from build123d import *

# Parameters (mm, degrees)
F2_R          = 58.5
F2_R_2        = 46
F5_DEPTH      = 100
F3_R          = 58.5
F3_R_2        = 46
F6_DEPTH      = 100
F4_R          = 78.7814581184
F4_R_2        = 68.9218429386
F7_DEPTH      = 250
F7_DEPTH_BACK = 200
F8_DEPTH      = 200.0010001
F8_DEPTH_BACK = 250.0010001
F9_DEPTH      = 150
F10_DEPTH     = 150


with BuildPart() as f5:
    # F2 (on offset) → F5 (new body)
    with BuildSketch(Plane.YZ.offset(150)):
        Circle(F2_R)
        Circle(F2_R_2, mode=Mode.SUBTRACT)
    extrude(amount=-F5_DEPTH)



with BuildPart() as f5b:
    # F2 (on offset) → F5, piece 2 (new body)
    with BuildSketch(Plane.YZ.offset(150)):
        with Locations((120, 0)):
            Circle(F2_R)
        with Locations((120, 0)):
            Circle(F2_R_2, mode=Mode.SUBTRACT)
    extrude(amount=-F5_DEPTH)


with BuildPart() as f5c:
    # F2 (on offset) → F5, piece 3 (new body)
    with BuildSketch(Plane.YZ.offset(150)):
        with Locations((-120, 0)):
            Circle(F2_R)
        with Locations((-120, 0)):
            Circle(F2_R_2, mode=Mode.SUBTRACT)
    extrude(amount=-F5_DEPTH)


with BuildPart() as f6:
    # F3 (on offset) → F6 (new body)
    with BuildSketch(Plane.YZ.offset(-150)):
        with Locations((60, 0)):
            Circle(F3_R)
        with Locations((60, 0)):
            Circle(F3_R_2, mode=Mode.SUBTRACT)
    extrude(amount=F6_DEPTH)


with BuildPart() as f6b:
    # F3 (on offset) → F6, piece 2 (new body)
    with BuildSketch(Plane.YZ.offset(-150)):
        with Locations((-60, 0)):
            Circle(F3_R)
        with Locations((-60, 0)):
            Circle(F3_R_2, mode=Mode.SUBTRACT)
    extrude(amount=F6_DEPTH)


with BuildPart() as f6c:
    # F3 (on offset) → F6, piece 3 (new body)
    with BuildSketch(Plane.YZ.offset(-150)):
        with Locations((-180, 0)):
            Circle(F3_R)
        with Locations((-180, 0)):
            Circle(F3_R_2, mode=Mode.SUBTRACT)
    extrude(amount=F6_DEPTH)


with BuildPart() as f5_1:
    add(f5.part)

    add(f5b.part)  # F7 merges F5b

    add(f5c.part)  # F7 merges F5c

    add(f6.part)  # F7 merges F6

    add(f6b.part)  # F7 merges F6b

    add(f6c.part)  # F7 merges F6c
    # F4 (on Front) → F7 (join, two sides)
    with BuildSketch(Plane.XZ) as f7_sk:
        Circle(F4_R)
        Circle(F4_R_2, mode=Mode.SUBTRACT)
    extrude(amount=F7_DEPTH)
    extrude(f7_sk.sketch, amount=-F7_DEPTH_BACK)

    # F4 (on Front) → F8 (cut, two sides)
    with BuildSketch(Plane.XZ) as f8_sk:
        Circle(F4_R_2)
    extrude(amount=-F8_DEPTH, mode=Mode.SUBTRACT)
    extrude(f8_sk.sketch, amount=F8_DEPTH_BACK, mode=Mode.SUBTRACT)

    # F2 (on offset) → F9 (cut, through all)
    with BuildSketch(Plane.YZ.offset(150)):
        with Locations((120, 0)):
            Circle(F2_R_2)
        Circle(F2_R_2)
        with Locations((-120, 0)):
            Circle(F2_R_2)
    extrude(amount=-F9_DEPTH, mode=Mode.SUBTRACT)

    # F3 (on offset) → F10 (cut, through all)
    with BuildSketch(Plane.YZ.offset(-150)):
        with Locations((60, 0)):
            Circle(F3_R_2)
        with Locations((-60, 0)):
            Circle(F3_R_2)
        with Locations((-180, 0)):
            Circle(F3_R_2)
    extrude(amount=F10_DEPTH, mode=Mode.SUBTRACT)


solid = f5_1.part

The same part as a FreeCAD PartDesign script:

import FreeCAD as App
import Part
import Sketcher
Q = App.Units.Quantity

doc = App.newDocument("Part")
body = doc.addObject("PartDesign::Body", "Body")

# Sketch on YZ plane
sketch1 = body.newObject("Sketcher::SketchObject", "Sketch")
sketch1.AttachmentSupport = (doc.getObject("YZ_Plane"), [""])
sketch1.MapMode = "FlatFace"
sketch1.AttachmentOffset = App.Placement(App.Vector(0, 0, 150), App.Rotation())
sketch1.addGeometry(Part.Circle(App.Vector(0, 0, 0), App.Vector(0, 0, 1), 58.5), False)
sketch1.addGeometry(Part.Circle(App.Vector(0, 0, 0), App.Vector(0, 0, 1), 46), False)
sketch1.addConstraint(Sketcher.Constraint("Coincident", 0, 3, -1, 1))
sketch1.addConstraint(Sketcher.Constraint("Coincident", 1, 3, -1, 1))
sketch1.addConstraint(Sketcher.Constraint("Diameter", 0, Q("117 mm")))
sketch1.addConstraint(Sketcher.Constraint("Diameter", 1, Q("92 mm")))
pad1 = body.newObject("PartDesign::Pad", "Pad")
pad1.Profile = sketch1
pad1.Length = 100
pad1.Reversed = True
body2 = doc.addObject("PartDesign::Body", "Body001")

# Sketch on YZ plane
sketch2 = body2.newObject("Sketcher::SketchObject", "Sketch001")
sketch2.AttachmentSupport = (doc.getObject("YZ_Plane001"), [""])
sketch2.MapMode = "FlatFace"
sketch2.AttachmentOffset = App.Placement(App.Vector(0, 0, 150), App.Rotation())
sketch2.addGeometry(Part.Circle(App.Vector(120, 0, 0), App.Vector(0, 0, 1), 58.5), False)
sketch2.addGeometry(Part.Circle(App.Vector(120, 0, 0), App.Vector(0, 0, 1), 46), False)
sketch2.addConstraint(Sketcher.Constraint("Coincident", 1, 3, 0, 3))
sketch2.addConstraint(Sketcher.Constraint("PointOnObject", 0, 3, -1))
sketch2.addConstraint(Sketcher.Constraint("Diameter", 0, Q("117 mm")))
sketch2.addConstraint(Sketcher.Constraint("Diameter", 1, Q("92 mm")))
sketch2.addConstraint(Sketcher.Constraint("DistanceX", -1, 1, 0, 3, Q("120 mm")))
pad2 = body2.newObject("PartDesign::Pad", "Pad001")
pad2.Profile = sketch2
pad2.Length = 100
pad2.Reversed = True
body3 = doc.addObject("PartDesign::Body", "Body002")

# Sketch on YZ plane
sketch3 = body3.newObject("Sketcher::SketchObject", "Sketch002")
sketch3.AttachmentSupport = (doc.getObject("YZ_Plane002"), [""])
sketch3.MapMode = "FlatFace"
sketch3.AttachmentOffset = App.Placement(App.Vector(0, 0, 150), App.Rotation())
sketch3.addGeometry(Part.Circle(App.Vector(-120, 0, 0), App.Vector(0, 0, 1), 58.5), False)
sketch3.addGeometry(Part.Circle(App.Vector(-120, 0, 0), App.Vector(0, 0, 1), 46), False)
sketch3.addConstraint(Sketcher.Constraint("Coincident", 1, 3, 0, 3))
sketch3.addConstraint(Sketcher.Constraint("PointOnObject", 0, 3, -1))
sketch3.addConstraint(Sketcher.Constraint("Diameter", 0, Q("117 mm")))
sketch3.addConstraint(Sketcher.Constraint("Diameter", 1, Q("92 mm")))
sketch3.addConstraint(Sketcher.Constraint("DistanceX", 0, 3, -1, 1, Q("120 mm")))
pad3 = body3.newObject("PartDesign::Pad", "Pad002")
pad3.Profile = sketch3
pad3.Length = 100
pad3.Reversed = True
body4 = doc.addObject("PartDesign::Body", "Body003")

# Sketch on YZ plane
sketch4 = body4.newObject("Sketcher::SketchObject", "Sketch003")
sketch4.AttachmentSupport = (doc.getObject("YZ_Plane003"), [""])
sketch4.MapMode = "FlatFace"
sketch4.AttachmentOffset = App.Placement(App.Vector(0, 0, -150), App.Rotation())
sketch4.addGeometry(Part.Circle(App.Vector(60, 0, 0), App.Vector(0, 0, 1), 58.5), False)
sketch4.addGeometry(Part.Circle(App.Vector(60, 0, 0), App.Vector(0, 0, 1), 46), False)
sketch4.addConstraint(Sketcher.Constraint("Coincident", 1, 3, 0, 3))
sketch4.addConstraint(Sketcher.Constraint("PointOnObject", 0, 3, -1))
sketch4.addConstraint(Sketcher.Constraint("Diameter", 0, Q("117 mm")))
sketch4.addConstraint(Sketcher.Constraint("Diameter", 1, Q("92 mm")))
sketch4.addConstraint(Sketcher.Constraint("DistanceX", -1, 1, 0, 3, Q("60 mm")))
pad4 = body4.newObject("PartDesign::Pad", "Pad003")
pad4.Profile = sketch4
pad4.Length = 100
body5 = doc.addObject("PartDesign::Body", "Body004")

# Sketch on YZ plane
sketch5 = body5.newObject("Sketcher::SketchObject", "Sketch004")
sketch5.AttachmentSupport = (doc.getObject("YZ_Plane004"), [""])
sketch5.MapMode = "FlatFace"
sketch5.AttachmentOffset = App.Placement(App.Vector(0, 0, -150), App.Rotation())
sketch5.addGeometry(Part.Circle(App.Vector(-60, 0, 0), App.Vector(0, 0, 1), 58.5), False)
sketch5.addGeometry(Part.Circle(App.Vector(-60, 0, 0), App.Vector(0, 0, 1), 46), False)
sketch5.addConstraint(Sketcher.Constraint("Coincident", 1, 3, 0, 3))
sketch5.addConstraint(Sketcher.Constraint("PointOnObject", 0, 3, -1))
sketch5.addConstraint(Sketcher.Constraint("Diameter", 0, Q("117 mm")))
sketch5.addConstraint(Sketcher.Constraint("Diameter", 1, Q("92 mm")))
sketch5.addConstraint(Sketcher.Constraint("DistanceX", 0, 3, -1, 1, Q("60 mm")))
pad5 = body5.newObject("PartDesign::Pad", "Pad004")
pad5.Profile = sketch5
pad5.Length = 100
body6 = doc.addObject("PartDesign::Body", "Body005")

# Sketch on YZ plane
sketch6 = body6.newObject("Sketcher::SketchObject", "Sketch005")
sketch6.AttachmentSupport = (doc.getObject("YZ_Plane005"), [""])
sketch6.MapMode = "FlatFace"
sketch6.AttachmentOffset = App.Placement(App.Vector(0, 0, -150), App.Rotation())
sketch6.addGeometry(Part.Circle(App.Vector(-180, 0, 0), App.Vector(0, 0, 1), 58.5), False)
sketch6.addGeometry(Part.Circle(App.Vector(-180, 0, 0), App.Vector(0, 0, 1), 46), False)
sketch6.addConstraint(Sketcher.Constraint("Coincident", 1, 3, 0, 3))
sketch6.addConstraint(Sketcher.Constraint("PointOnObject", 0, 3, -1))
sketch6.addConstraint(Sketcher.Constraint("Diameter", 0, Q("117 mm")))
sketch6.addConstraint(Sketcher.Constraint("Diameter", 1, Q("92 mm")))
sketch6.addConstraint(Sketcher.Constraint("DistanceX", 0, 3, -1, 1, Q("180 mm")))
pad6 = body6.newObject("PartDesign::Pad", "Pad005")
pad6.Profile = sketch6
pad6.Length = 100
body.AllowCompound = True
doc.recompute()

boolean = body.newObject("PartDesign::Boolean", "Boolean")
boolean.Type = "Fuse"
boolean.addObjects([body2])
doc.recompute()

boolean2 = body.newObject("PartDesign::Boolean", "Boolean001")
boolean2.Type = "Fuse"
boolean2.addObjects([body3])
doc.recompute()

boolean3 = body.newObject("PartDesign::Boolean", "Boolean002")
boolean3.Type = "Fuse"
boolean3.addObjects([body4])
doc.recompute()

boolean4 = body.newObject("PartDesign::Boolean", "Boolean003")
boolean4.Type = "Fuse"
boolean4.addObjects([body5])
doc.recompute()

boolean5 = body.newObject("PartDesign::Boolean", "Boolean004")
boolean5.Type = "Fuse"
boolean5.addObjects([body6])

# Sketch on XZ plane
sketch7 = body.newObject("Sketcher::SketchObject", "Sketch006")
sketch7.AttachmentSupport = (doc.getObject("XZ_Plane"), [""])
sketch7.MapMode = "FlatFace"
sketch7.addGeometry(Part.Circle(App.Vector(0, 0, 0), App.Vector(0, 0, 1), 78.781458), False)
sketch7.addGeometry(Part.Circle(App.Vector(0, 0, 0), App.Vector(0, 0, 1), 68.921843), False)
sketch7.addConstraint(Sketcher.Constraint("Coincident", 0, 3, -1, 1))
sketch7.addConstraint(Sketcher.Constraint("Coincident", 1, 3, -1, 1))
sketch7.addConstraint(Sketcher.Constraint("Diameter", 0, Q("157.562916 mm")))
sketch7.addConstraint(Sketcher.Constraint("Diameter", 1, Q("137.843686 mm")))
pad7 = body.newObject("PartDesign::Pad", "Pad006")
pad7.Profile = sketch7
pad7.Type = "TwoLengths"
pad7.Length = 250
pad7.Length2 = 200

# Sketch on XZ plane
sketch8 = body.newObject("Sketcher::SketchObject", "Sketch007")
sketch8.AttachmentSupport = (doc.getObject("XZ_Plane"), [""])
sketch8.MapMode = "FlatFace"
sketch8.addGeometry(Part.Circle(App.Vector(0, 0, 0), App.Vector(0, 0, 1), 68.921843), False)
sketch8.addConstraint(Sketcher.Constraint("Coincident", 0, 3, -1, 1))
sketch8.addConstraint(Sketcher.Constraint("Diameter", 0, Q("137.843686 mm")))
pocket1 = body.newObject("PartDesign::Pocket", "Pocket")
pocket1.Profile = sketch8
pocket1.Type = "ThroughAll"
pocket1.Midplane = True

# Sketch on YZ plane
sketch9 = body.newObject("Sketcher::SketchObject", "Sketch008")
sketch9.AttachmentSupport = (doc.getObject("YZ_Plane"), [""])
sketch9.MapMode = "FlatFace"
sketch9.AttachmentOffset = App.Placement(App.Vector(0, 0, 150), App.Rotation())
sketch9.addGeometry(Part.Circle(App.Vector(120, 0, 0), App.Vector(0, 0, 1), 46), False)
sketch9.addGeometry(Part.Circle(App.Vector(0, 0, 0), App.Vector(0, 0, 1), 46), False)
sketch9.addGeometry(Part.Circle(App.Vector(-120, 0, 0), App.Vector(0, 0, 1), 46), False)
sketch9.addConstraint(Sketcher.Constraint("Coincident", 1, 3, -1, 1))
sketch9.addConstraint(Sketcher.Constraint("Equal", 0, 1))
sketch9.addConstraint(Sketcher.Constraint("Equal", 1, 2))
sketch9.addConstraint(Sketcher.Constraint("Symmetric", 0, 3, 2, 3, -1, 1))
sketch9.addConstraint(Sketcher.Constraint("PointOnObject", 0, 3, -1))
sketch9.addConstraint(Sketcher.Constraint("Diameter", 0, Q("92 mm")))
sketch9.addConstraint(Sketcher.Constraint("DistanceX", -1, 1, 0, 3, Q("120 mm")))
pocket2 = body.newObject("PartDesign::Pocket", "Pocket001")
pocket2.Profile = sketch9
pocket2.Length = 150

# Sketch on YZ plane
sketch10 = body.newObject("Sketcher::SketchObject", "Sketch009")
sketch10.AttachmentSupport = (doc.getObject("YZ_Plane"), [""])
sketch10.MapMode = "FlatFace"
sketch10.AttachmentOffset = App.Placement(App.Vector(0, 0, -150), App.Rotation())
sketch10.addGeometry(Part.Circle(App.Vector(60, 0, 0), App.Vector(0, 0, 1), 46), False)
sketch10.addGeometry(Part.Circle(App.Vector(-60, 0, 0), App.Vector(0, 0, 1), 46), False)
sketch10.addGeometry(Part.Circle(App.Vector(-180, 0, 0), App.Vector(0, 0, 1), 46), False)
sketch10.addConstraint(Sketcher.Constraint("Equal", 0, 1))
sketch10.addConstraint(Sketcher.Constraint("Equal", 1, 2))
sketch10.addConstraint(Sketcher.Constraint("Symmetric", 0, 3, 1, 3, -1, 1))
sketch10.addConstraint(Sketcher.Constraint("PointOnObject", 0, 3, -1))
sketch10.addConstraint(Sketcher.Constraint("PointOnObject", 2, 3, -1))
sketch10.addConstraint(Sketcher.Constraint("Diameter", 0, Q("92 mm")))
sketch10.addConstraint(Sketcher.Constraint("DistanceX", -1, 1, 0, 3, Q("60 mm")))
sketch10.addConstraint(Sketcher.Constraint("DistanceX", 2, 3, -1, 1, Q("180 mm")))
pocket3 = body.newObject("PartDesign::Pocket", "Pocket002")
pocket3.Profile = sketch10
pocket3.Length = 150
pocket3.Reversed = True

doc.recompute()
